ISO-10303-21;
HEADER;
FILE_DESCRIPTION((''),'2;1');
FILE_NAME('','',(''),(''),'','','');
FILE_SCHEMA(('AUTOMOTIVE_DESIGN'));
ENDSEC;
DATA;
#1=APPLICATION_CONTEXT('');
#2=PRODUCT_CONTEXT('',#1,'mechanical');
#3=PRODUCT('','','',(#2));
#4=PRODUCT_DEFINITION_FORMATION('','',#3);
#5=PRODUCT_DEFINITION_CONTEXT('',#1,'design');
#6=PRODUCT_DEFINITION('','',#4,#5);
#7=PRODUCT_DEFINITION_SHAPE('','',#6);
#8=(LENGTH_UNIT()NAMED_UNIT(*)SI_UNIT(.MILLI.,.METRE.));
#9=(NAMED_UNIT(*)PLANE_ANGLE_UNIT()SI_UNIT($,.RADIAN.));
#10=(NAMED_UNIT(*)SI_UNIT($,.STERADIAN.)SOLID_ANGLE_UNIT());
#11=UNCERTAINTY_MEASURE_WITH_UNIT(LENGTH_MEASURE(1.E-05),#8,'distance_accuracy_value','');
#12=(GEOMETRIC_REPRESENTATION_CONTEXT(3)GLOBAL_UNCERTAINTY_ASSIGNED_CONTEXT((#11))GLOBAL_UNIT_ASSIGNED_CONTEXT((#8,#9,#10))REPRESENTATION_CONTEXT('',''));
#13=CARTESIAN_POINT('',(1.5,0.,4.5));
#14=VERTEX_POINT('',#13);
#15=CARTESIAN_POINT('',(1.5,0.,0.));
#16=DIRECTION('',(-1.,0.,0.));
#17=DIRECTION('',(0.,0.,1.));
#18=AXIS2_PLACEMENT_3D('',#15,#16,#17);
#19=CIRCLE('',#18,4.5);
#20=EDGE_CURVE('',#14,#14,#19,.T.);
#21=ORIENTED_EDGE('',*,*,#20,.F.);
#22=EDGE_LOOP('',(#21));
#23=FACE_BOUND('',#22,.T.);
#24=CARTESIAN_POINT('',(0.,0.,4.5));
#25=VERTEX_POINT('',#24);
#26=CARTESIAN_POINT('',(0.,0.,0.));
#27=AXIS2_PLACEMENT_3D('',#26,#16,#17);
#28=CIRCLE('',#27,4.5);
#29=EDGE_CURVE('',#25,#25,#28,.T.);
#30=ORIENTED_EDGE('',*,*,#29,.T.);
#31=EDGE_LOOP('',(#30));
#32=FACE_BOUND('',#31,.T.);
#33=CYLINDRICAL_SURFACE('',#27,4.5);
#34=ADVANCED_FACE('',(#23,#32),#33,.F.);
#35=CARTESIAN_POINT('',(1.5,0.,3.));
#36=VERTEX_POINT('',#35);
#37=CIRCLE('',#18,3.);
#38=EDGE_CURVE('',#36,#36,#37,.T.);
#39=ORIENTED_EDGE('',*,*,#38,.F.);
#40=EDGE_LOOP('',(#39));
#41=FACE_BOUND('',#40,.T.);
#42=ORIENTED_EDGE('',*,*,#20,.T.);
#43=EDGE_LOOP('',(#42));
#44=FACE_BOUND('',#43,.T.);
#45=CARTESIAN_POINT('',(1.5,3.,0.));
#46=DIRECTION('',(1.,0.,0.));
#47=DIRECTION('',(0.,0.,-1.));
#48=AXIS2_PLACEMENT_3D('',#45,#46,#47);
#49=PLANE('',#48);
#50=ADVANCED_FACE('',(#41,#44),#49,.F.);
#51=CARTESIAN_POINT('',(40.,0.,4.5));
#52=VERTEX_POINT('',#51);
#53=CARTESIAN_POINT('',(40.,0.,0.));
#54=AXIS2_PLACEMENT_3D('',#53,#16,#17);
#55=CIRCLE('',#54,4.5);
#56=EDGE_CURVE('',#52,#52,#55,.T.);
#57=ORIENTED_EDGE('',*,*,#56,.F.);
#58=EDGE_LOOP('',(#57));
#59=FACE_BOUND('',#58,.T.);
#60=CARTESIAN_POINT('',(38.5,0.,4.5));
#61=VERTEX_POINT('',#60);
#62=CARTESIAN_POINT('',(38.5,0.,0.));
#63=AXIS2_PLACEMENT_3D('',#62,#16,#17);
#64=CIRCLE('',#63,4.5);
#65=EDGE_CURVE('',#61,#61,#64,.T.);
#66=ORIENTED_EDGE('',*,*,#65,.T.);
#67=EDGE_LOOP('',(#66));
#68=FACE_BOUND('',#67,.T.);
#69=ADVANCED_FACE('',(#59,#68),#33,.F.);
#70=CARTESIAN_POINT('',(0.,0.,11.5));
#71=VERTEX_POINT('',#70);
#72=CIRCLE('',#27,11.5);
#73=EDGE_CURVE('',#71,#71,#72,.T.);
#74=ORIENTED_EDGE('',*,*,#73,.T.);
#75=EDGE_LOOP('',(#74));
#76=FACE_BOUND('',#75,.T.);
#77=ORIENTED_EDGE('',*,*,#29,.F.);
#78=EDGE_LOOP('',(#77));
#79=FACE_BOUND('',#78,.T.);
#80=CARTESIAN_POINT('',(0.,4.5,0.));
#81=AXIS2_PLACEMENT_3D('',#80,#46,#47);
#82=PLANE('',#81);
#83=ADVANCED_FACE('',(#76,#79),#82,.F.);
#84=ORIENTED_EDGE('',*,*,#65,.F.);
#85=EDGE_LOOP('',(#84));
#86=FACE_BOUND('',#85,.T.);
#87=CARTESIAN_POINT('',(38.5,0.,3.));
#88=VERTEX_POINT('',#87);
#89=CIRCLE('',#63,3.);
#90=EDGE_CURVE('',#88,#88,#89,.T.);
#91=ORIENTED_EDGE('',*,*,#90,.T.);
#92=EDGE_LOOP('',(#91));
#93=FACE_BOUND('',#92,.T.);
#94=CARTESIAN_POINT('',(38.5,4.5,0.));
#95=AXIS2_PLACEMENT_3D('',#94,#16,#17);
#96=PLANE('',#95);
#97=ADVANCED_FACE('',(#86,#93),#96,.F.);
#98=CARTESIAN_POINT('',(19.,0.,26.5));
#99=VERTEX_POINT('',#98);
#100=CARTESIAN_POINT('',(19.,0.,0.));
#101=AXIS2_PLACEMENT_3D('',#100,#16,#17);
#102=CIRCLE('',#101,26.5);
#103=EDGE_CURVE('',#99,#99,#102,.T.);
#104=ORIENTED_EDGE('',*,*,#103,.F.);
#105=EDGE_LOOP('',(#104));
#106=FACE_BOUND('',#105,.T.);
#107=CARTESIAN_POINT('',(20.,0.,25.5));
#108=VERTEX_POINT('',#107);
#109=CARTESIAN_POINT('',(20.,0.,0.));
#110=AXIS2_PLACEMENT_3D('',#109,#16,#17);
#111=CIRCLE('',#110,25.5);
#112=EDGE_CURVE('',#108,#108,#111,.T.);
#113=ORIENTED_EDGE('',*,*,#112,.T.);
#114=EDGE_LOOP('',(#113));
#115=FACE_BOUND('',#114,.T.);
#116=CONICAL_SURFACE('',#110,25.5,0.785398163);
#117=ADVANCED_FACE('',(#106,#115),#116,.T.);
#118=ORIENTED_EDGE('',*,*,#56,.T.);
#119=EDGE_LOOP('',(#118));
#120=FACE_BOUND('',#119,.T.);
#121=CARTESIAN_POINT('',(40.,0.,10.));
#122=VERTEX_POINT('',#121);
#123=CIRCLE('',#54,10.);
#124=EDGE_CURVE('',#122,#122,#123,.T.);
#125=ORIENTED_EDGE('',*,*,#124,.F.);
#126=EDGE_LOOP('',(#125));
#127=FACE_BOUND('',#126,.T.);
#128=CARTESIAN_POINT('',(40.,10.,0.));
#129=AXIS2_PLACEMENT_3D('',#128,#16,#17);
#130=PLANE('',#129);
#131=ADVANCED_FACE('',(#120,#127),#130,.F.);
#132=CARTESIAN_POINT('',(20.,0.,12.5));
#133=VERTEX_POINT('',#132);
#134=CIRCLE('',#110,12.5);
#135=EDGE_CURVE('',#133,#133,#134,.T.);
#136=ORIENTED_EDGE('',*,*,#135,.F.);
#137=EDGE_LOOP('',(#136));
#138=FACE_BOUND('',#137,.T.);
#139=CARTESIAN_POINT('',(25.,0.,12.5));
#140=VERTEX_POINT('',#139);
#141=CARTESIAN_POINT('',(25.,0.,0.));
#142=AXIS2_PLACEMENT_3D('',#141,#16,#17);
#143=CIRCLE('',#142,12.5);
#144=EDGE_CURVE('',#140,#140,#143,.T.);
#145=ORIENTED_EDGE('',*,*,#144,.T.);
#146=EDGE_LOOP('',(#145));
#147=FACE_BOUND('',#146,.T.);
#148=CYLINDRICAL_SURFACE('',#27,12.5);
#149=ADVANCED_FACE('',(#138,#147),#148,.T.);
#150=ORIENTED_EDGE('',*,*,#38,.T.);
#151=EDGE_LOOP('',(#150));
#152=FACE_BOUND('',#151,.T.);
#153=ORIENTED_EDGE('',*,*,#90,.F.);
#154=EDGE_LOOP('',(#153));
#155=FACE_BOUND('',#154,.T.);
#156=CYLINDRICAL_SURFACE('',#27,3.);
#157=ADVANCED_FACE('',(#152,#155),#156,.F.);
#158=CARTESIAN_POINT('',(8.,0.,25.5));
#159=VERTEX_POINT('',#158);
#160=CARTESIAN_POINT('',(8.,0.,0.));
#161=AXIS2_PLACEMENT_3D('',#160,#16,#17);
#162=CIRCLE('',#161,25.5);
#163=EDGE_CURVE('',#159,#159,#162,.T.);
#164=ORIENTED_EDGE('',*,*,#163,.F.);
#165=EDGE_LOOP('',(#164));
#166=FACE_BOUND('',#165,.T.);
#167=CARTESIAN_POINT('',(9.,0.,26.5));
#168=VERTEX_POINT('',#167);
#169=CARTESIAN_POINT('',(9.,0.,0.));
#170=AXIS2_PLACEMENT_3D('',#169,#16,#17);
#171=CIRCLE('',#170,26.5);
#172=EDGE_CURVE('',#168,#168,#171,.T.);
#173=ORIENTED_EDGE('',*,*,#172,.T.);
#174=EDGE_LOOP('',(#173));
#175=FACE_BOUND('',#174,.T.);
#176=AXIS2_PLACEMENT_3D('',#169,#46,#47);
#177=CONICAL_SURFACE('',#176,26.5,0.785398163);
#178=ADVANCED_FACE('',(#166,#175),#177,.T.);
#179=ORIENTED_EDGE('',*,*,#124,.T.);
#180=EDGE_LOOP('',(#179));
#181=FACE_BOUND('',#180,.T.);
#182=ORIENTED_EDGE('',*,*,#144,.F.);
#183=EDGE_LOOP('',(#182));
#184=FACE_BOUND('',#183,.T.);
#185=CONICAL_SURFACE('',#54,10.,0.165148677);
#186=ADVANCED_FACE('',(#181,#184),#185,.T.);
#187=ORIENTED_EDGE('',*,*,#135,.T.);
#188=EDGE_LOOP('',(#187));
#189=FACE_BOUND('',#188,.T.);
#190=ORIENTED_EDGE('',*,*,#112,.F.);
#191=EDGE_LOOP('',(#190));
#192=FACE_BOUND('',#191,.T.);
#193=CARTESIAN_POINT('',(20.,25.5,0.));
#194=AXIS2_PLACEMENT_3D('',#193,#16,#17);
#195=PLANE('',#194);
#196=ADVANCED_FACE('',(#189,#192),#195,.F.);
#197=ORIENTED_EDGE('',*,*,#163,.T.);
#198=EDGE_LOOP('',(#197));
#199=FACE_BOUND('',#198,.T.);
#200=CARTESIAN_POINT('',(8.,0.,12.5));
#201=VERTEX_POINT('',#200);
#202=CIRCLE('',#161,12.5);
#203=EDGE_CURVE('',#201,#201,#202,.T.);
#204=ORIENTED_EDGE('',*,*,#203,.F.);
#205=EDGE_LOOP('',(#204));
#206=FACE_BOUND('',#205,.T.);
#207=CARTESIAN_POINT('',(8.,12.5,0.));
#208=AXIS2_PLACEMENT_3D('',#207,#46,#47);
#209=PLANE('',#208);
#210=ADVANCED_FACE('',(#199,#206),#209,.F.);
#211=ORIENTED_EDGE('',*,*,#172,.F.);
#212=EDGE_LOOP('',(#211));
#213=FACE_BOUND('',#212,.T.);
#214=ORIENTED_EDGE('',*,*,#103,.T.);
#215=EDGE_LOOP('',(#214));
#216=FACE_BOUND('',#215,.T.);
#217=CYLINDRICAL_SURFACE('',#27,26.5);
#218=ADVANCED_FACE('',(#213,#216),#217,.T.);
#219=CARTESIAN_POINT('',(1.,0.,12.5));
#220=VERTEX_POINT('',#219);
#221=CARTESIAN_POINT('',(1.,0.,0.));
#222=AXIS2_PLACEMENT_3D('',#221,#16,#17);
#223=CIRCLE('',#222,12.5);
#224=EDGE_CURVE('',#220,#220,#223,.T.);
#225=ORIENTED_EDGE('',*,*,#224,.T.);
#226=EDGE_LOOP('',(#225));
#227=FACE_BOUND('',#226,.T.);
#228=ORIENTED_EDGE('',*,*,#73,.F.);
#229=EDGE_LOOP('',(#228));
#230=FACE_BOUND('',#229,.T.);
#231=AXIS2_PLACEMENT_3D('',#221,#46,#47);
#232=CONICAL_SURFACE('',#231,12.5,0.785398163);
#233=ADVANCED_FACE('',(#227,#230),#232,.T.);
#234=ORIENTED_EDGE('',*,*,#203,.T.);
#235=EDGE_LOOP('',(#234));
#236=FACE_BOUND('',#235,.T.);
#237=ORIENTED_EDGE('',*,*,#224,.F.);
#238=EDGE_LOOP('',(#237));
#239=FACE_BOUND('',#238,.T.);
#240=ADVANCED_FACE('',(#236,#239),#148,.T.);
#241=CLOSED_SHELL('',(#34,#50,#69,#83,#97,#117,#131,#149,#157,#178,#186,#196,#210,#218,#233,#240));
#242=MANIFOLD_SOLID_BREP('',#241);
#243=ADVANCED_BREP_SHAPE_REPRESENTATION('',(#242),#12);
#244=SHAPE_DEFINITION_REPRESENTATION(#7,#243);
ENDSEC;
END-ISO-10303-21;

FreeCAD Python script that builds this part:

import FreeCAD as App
import Part
import Sketcher
Q = App.Units.Quantity

doc = App.newDocument("Part")
body = doc.addObject("PartDesign::Body", "Body")

# Sketch on XY plane
sketch1 = body.newObject("Sketcher::SketchObject", "Sketch")
sketch1.AttachmentSupport = (doc.getObject("XY_Plane"), [""])
sketch1.MapMode = "FlatFace"
sketch1.addGeometry(Part.LineSegment(App.Vector(1, 12.5, 0), App.Vector(0, 11.5, 0)), False)
sketch1.addGeometry(Part.LineSegment(App.Vector(0, 11.5, 0), App.Vector(0, 4.5, 0)), False)
sketch1.addGeometry(Part.LineSegment(App.Vector(0, 4.5, 0), App.Vector(1.5, 4.5, 0)), False)
sketch1.addGeometry(Part.LineSegment(App.Vector(1.5, 4.5, 0), App.Vector(1.5, 3, 0)), False)
sketch1.addGeometry(Part.LineSegment(App.Vector(1.5, 3, 0), App.Vector(38.5, 3, 0)), False)
sketch1.addGeometry(Part.LineSegment(App.Vector(38.5, 3, 0), App.Vector(38.5, 4.5, 0)), False)
sketch1.addGeometry(Part.LineSegment(App.Vector(38.5, 4.5, 0), App.Vector(40, 4.5, 0)), False)
sketch1.addGeometry(Part.LineSegment(App.Vector(40, 4.5, 0), App.Vector(40, 10, 0)), False)
sketch1.addGeometry(Part.LineSegment(App.Vector(40, 10, 0), App.Vector(25, 12.5, 0)), False)
sketch1.addGeometry(Part.LineSegment(App.Vector(25, 12.5, 0), App.Vector(20, 12.5, 0)), False)
sketch1.addGeometry(Part.LineSegment(App.Vector(20, 12.5, 0), App.Vector(20, 25.5, 0)), False)
sketch1.addGeometry(Part.LineSegment(App.Vector(20, 25.5, 0), App.Vector(19, 26.5, 0)), False)
sketch1.addGeometry(Part.LineSegment(App.Vector(19, 26.5, 0), App.Vector(9, 26.5, 0)), False)
sketch1.addGeometry(Part.LineSegment(App.Vector(9, 26.5, 0), App.Vector(8, 25.5, 0)), False)
sketch1.addGeometry(Part.LineSegment(App.Vector(8, 25.5, 0), App.Vector(8, 12.5, 0)), False)
sketch1.addGeometry(Part.LineSegment(App.Vector(8, 12.5, 0), App.Vector(1, 12.5, 0)), False)
sketch1.addConstraint(Sketcher.Constraint("Coincident", 0, 2, 1, 1))
sketch1.addConstraint(Sketcher.Constraint("Coincident", 1, 2, 2, 1))
sketch1.addConstraint(Sketcher.Constraint("Coincident", 2, 2, 3, 1))
sketch1.addConstraint(Sketcher.Constraint("Coincident", 3, 2, 4, 1))
sketch1.addConstraint(Sketcher.Constraint("Coincident", 4, 2, 5, 1))
sketch1.addConstraint(Sketcher.Constraint("Coincident", 5, 2, 6, 1))
sketch1.addConstraint(Sketcher.Constraint("Coincident", 6, 2, 7, 1))
sketch1.addConstraint(Sketcher.Constraint("Coincident", 7, 2, 8, 1))
sketch1.addConstraint(Sketcher.Constraint("Coincident", 8, 2, 9, 1))
sketch1.addConstraint(Sketcher.Constraint("Coincident", 9, 2, 10, 1))
sketch1.addConstraint(Sketcher.Constraint("Coincident", 10, 2, 11, 1))
sketch1.addConstraint(Sketcher.Constraint("Coincident", 11, 2, 12, 1))
sketch1.addConstraint(Sketcher.Constraint("Coincident", 12, 2, 13, 1))
sketch1.addConstraint(Sketcher.Constraint("Coincident", 13, 2, 14, 1))
sketch1.addConstraint(Sketcher.Constraint("Coincident", 14, 2, 15, 1))
sketch1.addConstraint(Sketcher.Constraint("Coincident", 15, 2, 0, 1))
sketch1.addConstraint(Sketcher.Constraint("Vertical", 1))
sketch1.addConstraint(Sketcher.Constraint("Horizontal", 2))
sketch1.addConstraint(Sketcher.Constraint("Vertical", 3))
sketch1.addConstraint(Sketcher.Constraint("Horizontal", 4))
sketch1.addConstraint(Sketcher.Constraint("Vertical", 5))
sketch1.addConstraint(Sketcher.Constraint("Horizontal", 6))
sketch1.addConstraint(Sketcher.Constraint("Vertical", 7))
sketch1.addConstraint(Sketcher.Constraint("Horizontal", 9))
sketch1.addConstraint(Sketcher.Constraint("Vertical", 10))
sketch1.addConstraint(Sketcher.Constraint("Horizontal", 12))
sketch1.addConstraint(Sketcher.Constraint("Vertical", 14))
sketch1.addConstraint(Sketcher.Constraint("Horizontal", 15))
sketch1.addConstraint(Sketcher.Constraint("PointOnObject", 0, 2, -2))
sketch1.addConstraint(Sketcher.Constraint("Perpendicular", 0, 11))
sketch1.addConstraint(Sketcher.Constraint("Perpendicular", 11, 13))
sketch1.addConstraint(Sketcher.Constraint("Horizontal", 2, 2, 5, 2))
sketch1.addConstraint(Sketcher.Constraint("Horizontal", 10, 2, 13, 2))
sketch1.addConstraint(Sketcher.Constraint("Horizontal", 9, 2, 14, 2))
sketch1.addConstraint(Sketcher.Constraint("Equal", 2, 6))
sketch1.addConstraint(Sketcher.Constraint("Equal", 15, 1))
sketch1.addConstraint(Sketcher.Constraint("Equal", 6, 3))
sketch1.addConstraint(Sketcher.Constraint("Equal", 0, 11))
sketch1.addConstraint(Sketcher.Constraint("Equal", 11, 13))
sketch1.addConstraint(Sketcher.Constraint("DistanceX", 4, 1, 4, 2, Q("37 mm")))
sketch1.addConstraint(Sketcher.Constraint("DistanceX", 9, 2, 9, 1, Q("5 mm")))
sketch1.addConstraint(Sketcher.Constraint("DistanceX", 12, 2, 12, 1, Q("10 mm")))
sketch1.addConstraint(Sketcher.Constraint("DistanceX", 15, 2, 15, 1, Q("7 mm")))
sketch1.addConstraint(Sketcher.Constraint("DistanceY", 10, 1, 10, 2, Q("13 mm")))
sketch1.addConstraint(Sketcher.Constraint("DistanceX", 2, 1, 2, 2, Q("1.5 mm")))
sketch1.addConstraint(Sketcher.Constraint("DistanceY", 7, 1, 7, 2, Q("5.5 mm")))
sketch1.addConstraint(Sketcher.Constraint("DistanceY", -1, 1, 3, 2, Q("3 mm")))
sketch1.addConstraint(Sketcher.Constraint("DistanceX", -1, 1, 8, 2, Q("25 mm")))
revolution = body.newObject("PartDesign::Revolution", "Revolution")
revolution.Profile = sketch1
revolution.ReferenceAxis = (sketch1, ["H_Axis"])
revolution.Angle = 360

doc.recompute()
